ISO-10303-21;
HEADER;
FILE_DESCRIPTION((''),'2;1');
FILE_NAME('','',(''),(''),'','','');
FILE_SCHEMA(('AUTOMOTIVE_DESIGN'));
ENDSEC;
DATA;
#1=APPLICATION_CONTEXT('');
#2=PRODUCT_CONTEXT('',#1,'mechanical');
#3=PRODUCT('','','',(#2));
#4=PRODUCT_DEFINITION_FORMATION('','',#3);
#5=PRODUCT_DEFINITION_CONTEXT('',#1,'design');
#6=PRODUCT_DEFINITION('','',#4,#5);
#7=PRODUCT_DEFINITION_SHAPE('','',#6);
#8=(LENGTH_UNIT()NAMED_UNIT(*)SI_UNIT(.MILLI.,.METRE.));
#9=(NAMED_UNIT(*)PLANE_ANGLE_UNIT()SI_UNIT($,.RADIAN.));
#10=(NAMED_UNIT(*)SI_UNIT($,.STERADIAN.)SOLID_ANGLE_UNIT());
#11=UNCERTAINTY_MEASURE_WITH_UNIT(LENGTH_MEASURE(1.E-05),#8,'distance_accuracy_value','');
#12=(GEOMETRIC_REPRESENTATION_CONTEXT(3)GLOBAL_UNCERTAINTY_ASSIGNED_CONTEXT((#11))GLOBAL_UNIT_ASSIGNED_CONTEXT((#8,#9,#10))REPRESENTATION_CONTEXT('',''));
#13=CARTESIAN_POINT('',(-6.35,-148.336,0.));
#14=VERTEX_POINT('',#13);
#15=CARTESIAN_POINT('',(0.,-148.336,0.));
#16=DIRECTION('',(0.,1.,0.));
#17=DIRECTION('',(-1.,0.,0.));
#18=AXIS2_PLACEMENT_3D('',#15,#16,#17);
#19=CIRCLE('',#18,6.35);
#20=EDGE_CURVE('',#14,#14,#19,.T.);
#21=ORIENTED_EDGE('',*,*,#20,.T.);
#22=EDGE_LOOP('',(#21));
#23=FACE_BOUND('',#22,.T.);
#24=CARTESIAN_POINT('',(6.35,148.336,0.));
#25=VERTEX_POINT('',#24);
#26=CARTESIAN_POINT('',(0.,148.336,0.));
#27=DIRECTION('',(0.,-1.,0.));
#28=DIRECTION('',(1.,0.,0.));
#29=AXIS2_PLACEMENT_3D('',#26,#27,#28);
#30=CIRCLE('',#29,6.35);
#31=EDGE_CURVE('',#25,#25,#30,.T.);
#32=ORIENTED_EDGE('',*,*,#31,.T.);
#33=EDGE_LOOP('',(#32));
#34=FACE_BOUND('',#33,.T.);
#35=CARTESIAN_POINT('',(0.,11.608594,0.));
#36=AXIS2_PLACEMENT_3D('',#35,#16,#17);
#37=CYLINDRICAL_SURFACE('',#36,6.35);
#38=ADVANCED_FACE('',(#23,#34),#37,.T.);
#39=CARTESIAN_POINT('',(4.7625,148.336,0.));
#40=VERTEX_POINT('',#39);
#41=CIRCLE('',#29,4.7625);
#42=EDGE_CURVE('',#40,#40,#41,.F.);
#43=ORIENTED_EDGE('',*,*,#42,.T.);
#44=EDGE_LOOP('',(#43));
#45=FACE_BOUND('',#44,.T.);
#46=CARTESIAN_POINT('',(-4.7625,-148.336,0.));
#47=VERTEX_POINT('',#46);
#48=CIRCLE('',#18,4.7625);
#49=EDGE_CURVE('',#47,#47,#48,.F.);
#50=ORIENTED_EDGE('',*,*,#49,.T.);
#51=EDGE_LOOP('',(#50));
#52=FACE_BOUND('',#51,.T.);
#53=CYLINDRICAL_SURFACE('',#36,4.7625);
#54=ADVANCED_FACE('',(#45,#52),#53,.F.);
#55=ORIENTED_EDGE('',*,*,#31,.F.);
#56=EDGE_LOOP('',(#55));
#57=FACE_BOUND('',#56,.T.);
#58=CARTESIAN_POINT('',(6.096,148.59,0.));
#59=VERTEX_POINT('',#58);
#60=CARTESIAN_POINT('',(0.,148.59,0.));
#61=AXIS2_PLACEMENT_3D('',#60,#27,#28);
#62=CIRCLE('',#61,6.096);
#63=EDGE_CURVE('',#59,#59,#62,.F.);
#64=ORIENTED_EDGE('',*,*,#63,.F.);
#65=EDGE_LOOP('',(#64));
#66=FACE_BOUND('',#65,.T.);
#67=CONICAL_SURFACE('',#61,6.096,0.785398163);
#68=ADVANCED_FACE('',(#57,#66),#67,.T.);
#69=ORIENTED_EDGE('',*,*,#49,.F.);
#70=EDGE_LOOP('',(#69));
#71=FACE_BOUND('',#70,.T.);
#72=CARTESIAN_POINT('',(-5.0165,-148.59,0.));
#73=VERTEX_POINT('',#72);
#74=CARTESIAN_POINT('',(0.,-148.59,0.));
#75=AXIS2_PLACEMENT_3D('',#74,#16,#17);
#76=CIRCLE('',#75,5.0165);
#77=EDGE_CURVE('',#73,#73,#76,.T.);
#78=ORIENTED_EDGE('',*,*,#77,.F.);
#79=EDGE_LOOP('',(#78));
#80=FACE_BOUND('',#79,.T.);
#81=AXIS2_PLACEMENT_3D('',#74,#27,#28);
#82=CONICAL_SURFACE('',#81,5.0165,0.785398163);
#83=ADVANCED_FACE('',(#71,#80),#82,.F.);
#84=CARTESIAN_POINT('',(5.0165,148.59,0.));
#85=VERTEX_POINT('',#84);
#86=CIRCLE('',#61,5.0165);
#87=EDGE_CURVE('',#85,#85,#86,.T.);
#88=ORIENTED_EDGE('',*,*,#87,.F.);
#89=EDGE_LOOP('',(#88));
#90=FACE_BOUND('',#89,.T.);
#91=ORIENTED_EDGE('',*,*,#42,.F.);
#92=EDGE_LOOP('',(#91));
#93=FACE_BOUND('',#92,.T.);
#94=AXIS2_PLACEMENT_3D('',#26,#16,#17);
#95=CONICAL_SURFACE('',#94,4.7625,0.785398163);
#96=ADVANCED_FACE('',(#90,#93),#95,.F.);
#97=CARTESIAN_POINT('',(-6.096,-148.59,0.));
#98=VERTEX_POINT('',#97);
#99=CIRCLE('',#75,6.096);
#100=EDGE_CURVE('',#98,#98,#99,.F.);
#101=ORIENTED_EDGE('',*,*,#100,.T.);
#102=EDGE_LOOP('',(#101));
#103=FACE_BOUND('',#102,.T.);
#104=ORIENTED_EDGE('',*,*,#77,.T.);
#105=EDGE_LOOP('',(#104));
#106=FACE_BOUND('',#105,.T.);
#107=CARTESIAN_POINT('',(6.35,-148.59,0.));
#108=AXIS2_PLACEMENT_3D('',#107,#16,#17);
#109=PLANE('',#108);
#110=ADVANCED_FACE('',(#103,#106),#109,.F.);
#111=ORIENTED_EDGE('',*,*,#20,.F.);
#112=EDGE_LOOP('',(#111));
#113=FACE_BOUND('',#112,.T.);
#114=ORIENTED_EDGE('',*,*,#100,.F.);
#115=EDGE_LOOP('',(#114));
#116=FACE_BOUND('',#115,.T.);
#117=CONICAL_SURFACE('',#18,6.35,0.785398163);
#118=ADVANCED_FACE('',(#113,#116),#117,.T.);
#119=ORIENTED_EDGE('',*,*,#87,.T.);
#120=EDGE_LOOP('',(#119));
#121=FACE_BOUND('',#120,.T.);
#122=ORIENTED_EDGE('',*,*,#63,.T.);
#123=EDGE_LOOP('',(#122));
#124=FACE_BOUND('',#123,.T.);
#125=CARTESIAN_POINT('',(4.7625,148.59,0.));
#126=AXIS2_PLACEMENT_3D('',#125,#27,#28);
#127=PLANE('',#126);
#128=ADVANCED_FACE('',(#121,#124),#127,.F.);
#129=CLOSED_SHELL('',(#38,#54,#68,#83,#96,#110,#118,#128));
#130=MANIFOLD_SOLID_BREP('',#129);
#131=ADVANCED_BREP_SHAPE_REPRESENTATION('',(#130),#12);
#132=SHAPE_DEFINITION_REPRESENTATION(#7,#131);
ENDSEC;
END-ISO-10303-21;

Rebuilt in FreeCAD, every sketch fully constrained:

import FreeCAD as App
import Part
import Sketcher
Q = App.Units.Quantity


def edges_at(feature, points):
    """Names of the edges that pass closest to the given points."""
    edges = feature.Shape.Edges
    near = lambda p: min(range(len(edges)), key=lambda i: edges[i].distToShape(Part.Vertex(*p))[0])
    return sorted({f"Edge{near(p) + 1}" for p in points})


def add_polygon(sketch, points):
    """Adds a closed chain of lines whose ends are joined by coincident constraints."""
    first, n = sketch.GeometryCount, len(points)
    for a, b in zip(points, points[1:] + points[:1]):
        sketch.addGeometry(Part.LineSegment(App.Vector(*a, 0), App.Vector(*b, 0)), False)
    for i in range(n):
        sketch.addConstraint(Sketcher.Constraint("Coincident", first + i, 2, first + (i + 1) % n, 1))

doc = App.newDocument("Part")
body = doc.addObject("PartDesign::Body", "Body")

sketch1 = body.newObject("Sketcher::SketchObject", "Sketch")
sketch1.AttachmentSupport = (doc.getObject("XY_Plane"), [""])
sketch1.MapMode = "FlatFace"
add_polygon(sketch1, [(4.8, 148.6), (4.8, -148.6), (6.3, -148.6), (6.3, 148.6)])
sketch1.addConstraint(Sketcher.Constraint("Vertical", 0))
sketch1.addConstraint(Sketcher.Constraint("Horizontal", 1))
sketch1.addConstraint(Sketcher.Constraint("Vertical", 2))
sketch1.addConstraint(Sketcher.Constraint("Horizontal", 3))
sketch1.addConstraint(Sketcher.Constraint("DistanceY", 0, 2, 0, 1, Q("11.7 in")))
sketch1.addConstraint(Sketcher.Constraint("DistanceX", 1, 1, 1, 2, Q("0.0625 in")))
sketch1.addConstraint(Sketcher.Constraint("DistanceY", 0, 2, -1, 1, Q("5.85 in")))
sketch1.addConstraint(Sketcher.Constraint("DistanceX", -1, 1, 1, 2, Q("0.25 in")))
revolution = body.newObject("PartDesign::Revolution", "Revolution")
revolution.Profile = sketch1
revolution.ReferenceAxis = (sketch1, ["V_Axis"])
revolution.Angle = 360
doc.recompute()

chamfer = body.newObject("PartDesign::Chamfer", "Chamfer")
chamfer.Base = (revolution, edges_at(revolution, [
    (4.763, -148.59, 0),
    (6.35, -148.59, 0),
    (6.35, 148.59, 0),
    (4.763, 148.59, 0),
]))
chamfer.Size = Q("0.01 in")

doc.recompute()
